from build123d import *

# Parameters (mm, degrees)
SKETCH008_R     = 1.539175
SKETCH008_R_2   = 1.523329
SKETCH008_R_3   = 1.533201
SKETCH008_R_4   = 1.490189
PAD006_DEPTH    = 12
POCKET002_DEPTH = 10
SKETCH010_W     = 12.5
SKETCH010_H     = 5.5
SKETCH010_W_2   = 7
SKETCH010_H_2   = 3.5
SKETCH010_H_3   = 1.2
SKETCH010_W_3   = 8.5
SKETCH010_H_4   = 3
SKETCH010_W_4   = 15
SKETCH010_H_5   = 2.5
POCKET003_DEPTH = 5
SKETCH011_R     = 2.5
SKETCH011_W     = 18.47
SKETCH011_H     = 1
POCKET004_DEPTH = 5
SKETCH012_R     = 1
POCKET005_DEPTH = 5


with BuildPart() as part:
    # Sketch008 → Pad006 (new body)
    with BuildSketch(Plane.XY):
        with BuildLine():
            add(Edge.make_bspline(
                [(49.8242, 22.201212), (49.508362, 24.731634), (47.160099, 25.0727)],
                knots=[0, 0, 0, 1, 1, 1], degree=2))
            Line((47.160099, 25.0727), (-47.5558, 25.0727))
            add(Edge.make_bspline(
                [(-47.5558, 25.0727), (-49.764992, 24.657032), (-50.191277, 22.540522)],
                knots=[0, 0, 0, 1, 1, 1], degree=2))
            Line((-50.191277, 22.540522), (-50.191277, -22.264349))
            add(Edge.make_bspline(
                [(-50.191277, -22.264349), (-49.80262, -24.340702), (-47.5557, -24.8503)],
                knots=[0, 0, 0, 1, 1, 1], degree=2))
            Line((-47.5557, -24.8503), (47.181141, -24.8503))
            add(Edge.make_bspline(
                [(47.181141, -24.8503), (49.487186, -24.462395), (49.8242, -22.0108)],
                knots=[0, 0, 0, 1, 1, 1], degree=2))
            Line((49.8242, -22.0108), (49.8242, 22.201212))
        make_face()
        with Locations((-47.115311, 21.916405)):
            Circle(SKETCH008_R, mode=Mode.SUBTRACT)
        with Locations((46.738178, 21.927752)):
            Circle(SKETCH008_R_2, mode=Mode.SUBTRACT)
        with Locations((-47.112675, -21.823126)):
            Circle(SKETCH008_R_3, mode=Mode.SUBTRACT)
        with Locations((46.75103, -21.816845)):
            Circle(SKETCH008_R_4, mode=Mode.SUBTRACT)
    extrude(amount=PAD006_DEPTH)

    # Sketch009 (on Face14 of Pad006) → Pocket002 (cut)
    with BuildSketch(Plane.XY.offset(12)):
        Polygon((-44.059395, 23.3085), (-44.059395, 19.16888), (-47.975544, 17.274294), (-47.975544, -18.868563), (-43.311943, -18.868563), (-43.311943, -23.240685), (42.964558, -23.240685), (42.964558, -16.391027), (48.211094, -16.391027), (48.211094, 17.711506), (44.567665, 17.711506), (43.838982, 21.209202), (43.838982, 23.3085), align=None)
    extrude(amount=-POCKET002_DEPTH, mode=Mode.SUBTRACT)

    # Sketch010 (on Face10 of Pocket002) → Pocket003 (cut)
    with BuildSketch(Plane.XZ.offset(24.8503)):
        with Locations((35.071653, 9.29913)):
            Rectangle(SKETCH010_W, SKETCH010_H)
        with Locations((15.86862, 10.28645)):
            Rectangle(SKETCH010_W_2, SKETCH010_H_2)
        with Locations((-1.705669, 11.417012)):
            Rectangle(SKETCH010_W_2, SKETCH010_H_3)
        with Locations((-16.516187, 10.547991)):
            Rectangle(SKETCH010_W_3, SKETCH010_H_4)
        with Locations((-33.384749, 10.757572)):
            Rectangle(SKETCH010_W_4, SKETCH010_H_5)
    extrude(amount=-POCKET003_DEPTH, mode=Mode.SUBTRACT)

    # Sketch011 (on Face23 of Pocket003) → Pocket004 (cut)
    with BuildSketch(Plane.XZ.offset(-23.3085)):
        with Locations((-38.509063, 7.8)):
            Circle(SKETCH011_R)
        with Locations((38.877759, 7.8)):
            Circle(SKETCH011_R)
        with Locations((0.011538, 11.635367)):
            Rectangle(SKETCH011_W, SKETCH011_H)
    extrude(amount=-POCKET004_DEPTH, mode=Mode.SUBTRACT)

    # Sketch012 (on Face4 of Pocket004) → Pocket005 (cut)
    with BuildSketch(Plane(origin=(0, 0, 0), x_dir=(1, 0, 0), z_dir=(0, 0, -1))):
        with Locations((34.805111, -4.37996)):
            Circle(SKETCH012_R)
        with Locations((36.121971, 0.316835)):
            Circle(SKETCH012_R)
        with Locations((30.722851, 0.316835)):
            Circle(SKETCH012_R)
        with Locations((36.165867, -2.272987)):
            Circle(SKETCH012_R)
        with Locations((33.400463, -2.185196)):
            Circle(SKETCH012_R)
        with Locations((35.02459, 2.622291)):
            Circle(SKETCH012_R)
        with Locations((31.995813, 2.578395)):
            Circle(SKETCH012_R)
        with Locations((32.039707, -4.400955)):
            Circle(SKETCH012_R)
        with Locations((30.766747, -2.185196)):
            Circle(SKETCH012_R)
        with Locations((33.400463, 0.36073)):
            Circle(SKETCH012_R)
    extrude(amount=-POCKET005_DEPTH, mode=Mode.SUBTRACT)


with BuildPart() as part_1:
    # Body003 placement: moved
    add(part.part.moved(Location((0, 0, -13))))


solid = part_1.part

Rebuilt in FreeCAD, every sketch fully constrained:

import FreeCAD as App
import Part
import Sketcher

V = App.Vector


def add_polygon(sketch, points):
    """Adds a closed chain of lines whose ends are joined by coincident constraints."""
    first, n = sketch.GeometryCount, len(points)
    for a, b in zip(points, points[1:] + points[:1]):
        sketch.addGeometry(Part.LineSegment(App.Vector(*a, 0), App.Vector(*b, 0)), False)
    for i in range(n):
        sketch.addConstraint(Sketcher.Constraint("Coincident", first + i, 2, first + (i + 1) % n, 1))

doc = App.newDocument("Part")
body = doc.addObject("PartDesign::Body", "Body")

# Sketch on XY plane
sketch1 = doc.addObject("Sketcher::SketchObject", "Sketch")
body.addObject(sketch1)
sketch1.AttachmentSupport = (doc.XY_Plane, [""])
sketch1.MapMode = "FlatFace"
sketch1.addGeometry([
    Part.BSplineCurve([V(49.8242, 22.201212, 0), V(49.508362, 24.731634, 0), V(47.160099, 25.0727, 0)], [3, 3], [0, 1], False, 2, [1, 1, 1], False),  # 0
    Part.LineSegment(V(47.160099, 25.0727, 0), V(-47.5558, 25.0727, 0)),  # 1
    Part.BSplineCurve([V(-47.5558, 25.0727, 0), V(-49.764992, 24.657032, 0), V(-50.191277, 22.540522, 0)], [3, 3], [0, 1], False, 2, [1, 1, 1], False),  # 2
    Part.LineSegment(V(-50.191277, 22.540522, 0), V(-50.191277, -22.264349, 0)),  # 3
    Part.BSplineCurve([V(-50.191277, -22.264349, 0), V(-49.80262, -24.340702, 0), V(-47.5557, -24.8503, 0)], [3, 3], [0, 1], False, 2, [1, 1, 1], False),  # 4
    Part.LineSegment(V(-47.5557, -24.8503, 0), V(47.181141, -24.8503, 0)),  # 5
    Part.BSplineCurve([V(47.181141, -24.8503, 0), V(49.487186, -24.462395, 0), V(49.8242, -22.0108, 0)], [3, 3], [0, 1], False, 2, [1, 1, 1], False),  # 6
    Part.LineSegment(V(49.8242, -22.0108, 0), V(49.8242, 22.201212, 0)),  # 7
    Part.Circle(V(-47.112675, -21.823126, 0), V(0, 0, 1), 1.533201),  # 8
    Part.Circle(V(46.75103, -21.816845, 0), V(0, 0, 1), 1.490189),  # 9
    Part.Circle(V(-47.115311, 21.916405, 0), V(0, 0, 1), 1.539175),  # 10
    Part.Circle(V(46.738178, 21.927752, 0), V(0, 0, 1), 1.523329),  # 11
], False)
sketch1.addConstraint([
    Sketcher.Constraint("Block", 0),
    Sketcher.Constraint("Block", 2),
    Sketcher.Constraint("Block", 4),
    Sketcher.Constraint("Block", 6),
    Sketcher.Constraint("Coincident", 0, 2, 1, 1),
    Sketcher.Constraint("Coincident", 1, 2, 2, 1),
    Sketcher.Constraint("Coincident", 2, 2, 3, 1),
    Sketcher.Constraint("Coincident", 3, 2, 4, 1),
    Sketcher.Constraint("Coincident", 4, 2, 5, 1),
    Sketcher.Constraint("Coincident", 5, 2, 6, 1),
    Sketcher.Constraint("Coincident", 6, 2, 7, 1),
    Sketcher.Constraint("Coincident", 7, 2, 0, 1),
    Sketcher.Constraint("Diameter", 9, 2.980378),
    Sketcher.Constraint("Diameter", 10, 3.07835),
    Sketcher.Constraint("Diameter", 8, 3.066402),
    Sketcher.Constraint("Diameter", 11, 3.046658),
    Sketcher.Constraint("DistanceX", 3, 2, 8, 3, 3.078602),
    Sketcher.Constraint("DistanceY", 3, 2, 11, 3, 44.192101),
    Sketcher.Constraint("DistanceX", -1, 1, 9, 3, 46.75103),
    Sketcher.Constraint("DistanceX", 10, 3, -1, 1, 47.115311),
    Sketcher.Constraint("DistanceY", 8, 3, 9, 3, 0.006281),
    Sketcher.Constraint("DistanceY", 8, 3, 10, 3, 43.739531),
    Sketcher.Constraint("DistanceX", 10, 3, 11, 3, 93.853489),
    Sketcher.Constraint("DistanceY", 8, 3, -1, 1, 21.823126),
])
pad1 = doc.addObject("PartDesign::Pad", "Pad")
body.addObject(pad1)
pad1.Profile = sketch1
pad1.Length = 12

# Sketch on XY plane
sketch2 = doc.addObject("Sketcher::SketchObject", "Sketch001")
body.addObject(sketch2)
sketch2.AttachmentSupport = (doc.XY_Plane, [""])
sketch2.MapMode = "FlatFace"
sketch2.AttachmentOffset = App.Placement(V(0, 0, 12), App.Rotation())
add_polygon(sketch2, [(-44.1, 23.3), (-44.1, 19.2), (-48, 17.3), (-48, -18.9), (-43.3, -18.9), (-43.3, -23.2), (43, -23.2), (43, -16.4), (48.2, -16.4), (48.2, 17.7), (44.6, 17.7), (43.8, 21.2), (43.8, 23.3)])  # lines 0-12
sketch2.addConstraint([
    Sketcher.Constraint("Vertical", 0),
    Sketcher.Constraint("Vertical", 2),
    Sketcher.Constraint("Horizontal", 3),
    Sketcher.Constraint("Vertical", 4),
    Sketcher.Constraint("Horizontal", 5),
    Sketcher.Constraint("Vertical", 6),
    Sketcher.Constraint("Horizontal", 7),
    Sketcher.Constraint("Vertical", 8),
    Sketcher.Constraint("Horizontal", 9),
    Sketcher.Constraint("Vertical", 11),
    Sketcher.Constraint("Horizontal", 12),
    Sketcher.Constraint("DistanceX", 3, 1, 3, 2, 4.663601),
    Sketcher.Constraint("DistanceX", 5, 1, 5, 2, 86.276501),
    Sketcher.Constraint("DistanceX", 9, 2, 9, 1, 3.643429),
    Sketcher.Constraint("DistanceY", 0, 2, 0, 1, 4.13962),
    Sketcher.Constraint("DistanceY", 4, 2, 4, 1, 4.372122),
    Sketcher.Constraint("DistanceY", -1, 1, 11, 2, 23.3085),
    Sketcher.Constraint("DistanceX", 7, 1, 7, 2, 5.246536),
    Sketcher.Constraint("DistanceX", 12, 2, 12, 1, 87.898377),
    Sketcher.Constraint("DistanceY", 2, 2, 2, 1, 36.142857),
    Sketcher.Constraint("DistanceY", 6, 1, 6, 2, 6.849658),
    Sketcher.Constraint("DistanceY", 8, 1, 8, 2, 34.102533),
    Sketcher.Constraint("DistanceY", 11, 1, 11, 2, 2.099298),
    Sketcher.Constraint("DistanceX", 1, 2, 0, 2, 3.916149),
    Sketcher.Constraint("DistanceY", 6, 2, 10, 2, 37.600229),
    Sketcher.Constraint("DistanceX", 0, 2, -1, 1, 44.059395),
])
pocket1 = doc.addObject("PartDesign::Pocket", "Pocket")
body.addObject(pocket1)
pocket1.Profile = sketch2
pocket1.Length = 10

# Sketch on XZ plane
sketch3 = doc.addObject("Sketcher::SketchObject", "Sketch002")
body.addObject(sketch3)
sketch3.AttachmentSupport = (doc.XZ_Plane, [""])
sketch3.MapMode = "FlatFace"
sketch3.AttachmentOffset = App.Placement(V(0, 0, 24.8503), App.Rotation())
add_polygon(sketch3, [(28.8, 12), (28.8, 6.5), (41.3, 6.5), (41.3, 12)])  # lines 0-3
add_polygon(sketch3, [(12.4, 12), (12.4, 8.5), (19.4, 8.5), (19.4, 12)])  # lines 4-7
add_polygon(sketch3, [(-5.2, 12), (-5.2, 10.8), (1.8, 10.8), (1.8, 12)])  # lines 8-11
add_polygon(sketch3, [(-20.8, 12), (-20.8, 9), (-12.3, 9), (-12.3, 12)])  # lines 12-15
add_polygon(sketch3, [(-40.9, 12), (-40.9, 9.5), (-25.9, 9.5), (-25.9, 12)])  # lines 16-19
sketch3.addConstraint([
    Sketcher.Constraint("Vertical", 0),
    Sketcher.Constraint("Horizontal", 1),
    Sketcher.Constraint("Vertical", 2),
    Sketcher.Constraint("Horizontal", 3),
    Sketcher.Constraint("Vertical", 4),
    Sketcher.Constraint("Horizontal", 5),
    Sketcher.Constraint("Vertical", 6),
    Sketcher.Constraint("Horizontal", 7),
    Sketcher.Constraint("Vertical", 8),
    Sketcher.Constraint("Horizontal", 9),
    Sketcher.Constraint("Vertical", 10),
    Sketcher.Constraint("Horizontal", 11),
    Sketcher.Constraint("Vertical", 12),
    Sketcher.Constraint("Horizontal", 13),
    Sketcher.Constraint("Vertical", 14),
    Sketcher.Constraint("Horizontal", 15),
    Sketcher.Constraint("Vertical", 16),
    Sketcher.Constraint("Horizontal", 17),
    Sketcher.Constraint("Vertical", 18),
    Sketcher.Constraint("Horizontal", 19),
    Sketcher.Constraint("Equal", 7, 9),
    Sketcher.Constraint("DistanceX", 5, 1, 5, 2, 7.0),
    Sketcher.Constraint("DistanceX", 17, 1, 17, 2, 15.0),
    Sketcher.Constraint("DistanceY", 12, 2, 12, 1, 3.0),
    Sketcher.Constraint("DistanceX", 1, 1, 1, 2, 12.5),
    Sketcher.Constraint("DistanceX", 13, 1, 13, 2, 8.5),
    Sketcher.Constraint("DistanceY", 0, 2, 0, 1, 5.5),
    Sketcher.Constraint("DistanceY", 4, 2, 4, 1, 3.5),
    Sketcher.Constraint("DistanceY", 8, 2, 8, 1, 1.2),
    Sketcher.Constraint("DistanceY", 16, 2, 16, 1, 2.5),
    Sketcher.Constraint("DistanceY", -1, 1, 0, 2, 6.54913),
    Sketcher.Constraint("DistanceX", -1, 1, 4, 2, 12.36862),
    Sketcher.Constraint("DistanceY", -1, 1, 4, 2, 8.53645),
    Sketcher.Constraint("DistanceX", 8, 2, -1, 1, 5.205669),
    Sketcher.Constraint("DistanceY", -1, 1, 10, 2, 12.017012),
    Sketcher.Constraint("DistanceY", -1, 1, 12, 2, 9.047991),
    Sketcher.Constraint("DistanceX", 16, 2, -1, 1, 40.884749),
    Sketcher.Constraint("DistanceX", 8, 2, 3, 2, 34.027322),
    Sketcher.Constraint("DistanceY", 12, 2, 16, 2, 0.459581),
    Sketcher.Constraint("DistanceX", 16, 2, 13, 2, 28.618562),
])
pocket2 = doc.addObject("PartDesign::Pocket", "Pocket001")
body.addObject(pocket2)
pocket2.Profile = sketch3
pocket2.Length = 5

# Sketch on XZ plane
sketch4 = doc.addObject("Sketcher::SketchObject", "Sketch003")
body.addObject(sketch4)
sketch4.AttachmentSupport = (doc.XZ_Plane, [""])
sketch4.MapMode = "FlatFace"
sketch4.AttachmentOffset = App.Placement(V(0, 0, -23.3085), App.Rotation())
sketch4.addGeometry(Part.Circle(V(-38.5, 7.8, 0), V(0, 0, 1), 2.5), False)  # 0
sketch4.addGeometry(Part.Circle(V(38.9, 7.8, 0), V(0, 0, 1), 2.5), False)  # 1
add_polygon(sketch4, [(-9.2, 12.1), (-9.2, 11.1), (9.2, 11.1), (9.2, 12.1)])  # lines 2-5
sketch4.addConstraint([
    Sketcher.Constraint("Vertical", 2),
    Sketcher.Constraint("Horizontal", 3),
    Sketcher.Constraint("Vertical", 4),
    Sketcher.Constraint("Horizontal", 5),
    Sketcher.Constraint("Equal", 0, 1),
    Sketcher.Constraint("Horizontal", 0, 3, 1, 3),
    Sketcher.Constraint("Diameter", 0, 5.0),
    Sketcher.Constraint("DistanceY", 2, 2, 2, 1, 1.0),
    Sketcher.Constraint("DistanceX", 3, 1, 3, 2, 18.47),
    Sketcher.Constraint("DistanceY", -1, 1, 0, 3, 7.8),
    Sketcher.Constraint("DistanceX", 0, 3, 2, 2, 29.285601),
    Sketcher.Constraint("DistanceX", -1, 1, 1, 3, 38.877759),
    Sketcher.Constraint("DistanceX", 0, 3, 1, 3, 77.386822),
    Sketcher.Constraint("DistanceY", -1, 1, 2, 2, 11.135367),
])
pocket3 = doc.addObject("PartDesign::Pocket", "Pocket002")
body.addObject(pocket3)
pocket3.Profile = sketch4
pocket3.Length = 5

# Sketch on XY plane
sketch5 = doc.addObject("Sketcher::SketchObject", "Sketch004")
body.addObject(sketch5)
sketch5.AttachmentSupport = (doc.XY_Plane, [""])
sketch5.MapMode = "FlatFace"
sketch5.addGeometry([
    Part.Circle(V(34.8, 4.4, 0), V(0, 0, 1), 1),  # 0
    Part.Circle(V(36.1, -0.3, 0), V(0, 0, 1), 1),  # 1
    Part.Circle(V(30.7, -0.3, 0), V(0, 0, 1), 1),  # 2
    Part.Circle(V(36.2, 2.3, 0), V(0, 0, 1), 1),  # 3
    Part.Circle(V(33.4, 2.2, 0), V(0, 0, 1), 1),  # 4
    Part.Circle(V(35, -2.6, 0), V(0, 0, 1), 1),  # 5
    Part.Circle(V(32, -2.6, 0), V(0, 0, 1), 1),  # 6
    Part.Circle(V(32, 4.4, 0), V(0, 0, 1), 1),  # 7
    Part.Circle(V(30.8, 2.2, 0), V(0, 0, 1), 1),  # 8
    Part.Circle(V(33.4, -0.4, 0), V(0, 0, 1), 1),  # 9
], False)
sketch5.addConstraint([
    Sketcher.Constraint("Equal", 0, 1),
    Sketcher.Constraint("Equal", 1, 2),
    Sketcher.Constraint("Equal", 2, 3),
    Sketcher.Constraint("Equal", 3, 4),
    Sketcher.Constraint("Equal", 4, 5),
    Sketcher.Constraint("Equal", 5, 6),
    Sketcher.Constraint("Equal", 6, 7),
    Sketcher.Constraint("Equal", 7, 8),
    Sketcher.Constraint("Equal", 8, 9),
    Sketcher.Constraint("Horizontal", 1, 3, 2, 3),
    Sketcher.Constraint("Horizontal", 4, 3, 8, 3),
    Sketcher.Constraint("Vertical", 4, 3, 9, 3),
    Sketcher.Constraint("Diameter", 0, 2.0),
    Sketcher.Constraint("DistanceX", -1, 1, 0, 3, 34.805111),
    Sketcher.Constraint("DistanceY", -1, 1, 0, 3, 4.37996),
    Sketcher.Constraint("DistanceX", -1, 1, 1, 3, 36.121971),
    Sketcher.Constraint("DistanceX", -1, 1, 2, 3, 30.722851),
    Sketcher.Constraint("DistanceX", -1, 1, 5, 3, 35.02459),
    Sketcher.Constraint("DistanceY", 5, 3, -1, 1, 2.622291),
    Sketcher.Constraint("DistanceY", 9, 3, -1, 1, 0.36073),
    Sketcher.Constraint("DistanceY", 1, 3, 3, 3, 2.589822),
    Sketcher.Constraint("DistanceY", 4, 3, 3, 3, 0.087791),
    Sketcher.Constraint("DistanceX", 4, 3, 1, 3, 2.721508),
    Sketcher.Constraint("DistanceY", 5, 3, 3, 3, 4.895278),
    Sketcher.Constraint("DistanceX", 2, 3, 6, 3, 1.272962),
    Sketcher.Constraint("DistanceY", 6, 3, 2, 3, 2.26156),
    Sketcher.Constraint("DistanceY", 4, 3, 7, 3, 2.215759),
    Sketcher.Constraint("DistanceX", 7, 3, 3, 3, 4.12616),
    Sketcher.Constraint("DistanceX", 8, 3, 7, 3, 1.27296),
    Sketcher.Constraint("DistanceX", -1, 1, 3, 3, 36.165867),
])
pocket4 = doc.addObject("PartDesign::Pocket", "Pocket003")
body.addObject(pocket4)
pocket4.Profile = sketch5
pocket4.Length = 5
pocket4.Reversed = True
body2 = doc.addObject("PartDesign::Body", "Body001")
doc.recompute()

body.Placement = App.Placement(V(0, 0, -13), App.Rotation(V(0, 0, 1), 0))
boolean = doc.addObject("PartDesign::Boolean", "Boolean")
body2.addObject(boolean)
boolean.Type = "Fuse"
boolean.addObjects([body])

doc.recompute()
